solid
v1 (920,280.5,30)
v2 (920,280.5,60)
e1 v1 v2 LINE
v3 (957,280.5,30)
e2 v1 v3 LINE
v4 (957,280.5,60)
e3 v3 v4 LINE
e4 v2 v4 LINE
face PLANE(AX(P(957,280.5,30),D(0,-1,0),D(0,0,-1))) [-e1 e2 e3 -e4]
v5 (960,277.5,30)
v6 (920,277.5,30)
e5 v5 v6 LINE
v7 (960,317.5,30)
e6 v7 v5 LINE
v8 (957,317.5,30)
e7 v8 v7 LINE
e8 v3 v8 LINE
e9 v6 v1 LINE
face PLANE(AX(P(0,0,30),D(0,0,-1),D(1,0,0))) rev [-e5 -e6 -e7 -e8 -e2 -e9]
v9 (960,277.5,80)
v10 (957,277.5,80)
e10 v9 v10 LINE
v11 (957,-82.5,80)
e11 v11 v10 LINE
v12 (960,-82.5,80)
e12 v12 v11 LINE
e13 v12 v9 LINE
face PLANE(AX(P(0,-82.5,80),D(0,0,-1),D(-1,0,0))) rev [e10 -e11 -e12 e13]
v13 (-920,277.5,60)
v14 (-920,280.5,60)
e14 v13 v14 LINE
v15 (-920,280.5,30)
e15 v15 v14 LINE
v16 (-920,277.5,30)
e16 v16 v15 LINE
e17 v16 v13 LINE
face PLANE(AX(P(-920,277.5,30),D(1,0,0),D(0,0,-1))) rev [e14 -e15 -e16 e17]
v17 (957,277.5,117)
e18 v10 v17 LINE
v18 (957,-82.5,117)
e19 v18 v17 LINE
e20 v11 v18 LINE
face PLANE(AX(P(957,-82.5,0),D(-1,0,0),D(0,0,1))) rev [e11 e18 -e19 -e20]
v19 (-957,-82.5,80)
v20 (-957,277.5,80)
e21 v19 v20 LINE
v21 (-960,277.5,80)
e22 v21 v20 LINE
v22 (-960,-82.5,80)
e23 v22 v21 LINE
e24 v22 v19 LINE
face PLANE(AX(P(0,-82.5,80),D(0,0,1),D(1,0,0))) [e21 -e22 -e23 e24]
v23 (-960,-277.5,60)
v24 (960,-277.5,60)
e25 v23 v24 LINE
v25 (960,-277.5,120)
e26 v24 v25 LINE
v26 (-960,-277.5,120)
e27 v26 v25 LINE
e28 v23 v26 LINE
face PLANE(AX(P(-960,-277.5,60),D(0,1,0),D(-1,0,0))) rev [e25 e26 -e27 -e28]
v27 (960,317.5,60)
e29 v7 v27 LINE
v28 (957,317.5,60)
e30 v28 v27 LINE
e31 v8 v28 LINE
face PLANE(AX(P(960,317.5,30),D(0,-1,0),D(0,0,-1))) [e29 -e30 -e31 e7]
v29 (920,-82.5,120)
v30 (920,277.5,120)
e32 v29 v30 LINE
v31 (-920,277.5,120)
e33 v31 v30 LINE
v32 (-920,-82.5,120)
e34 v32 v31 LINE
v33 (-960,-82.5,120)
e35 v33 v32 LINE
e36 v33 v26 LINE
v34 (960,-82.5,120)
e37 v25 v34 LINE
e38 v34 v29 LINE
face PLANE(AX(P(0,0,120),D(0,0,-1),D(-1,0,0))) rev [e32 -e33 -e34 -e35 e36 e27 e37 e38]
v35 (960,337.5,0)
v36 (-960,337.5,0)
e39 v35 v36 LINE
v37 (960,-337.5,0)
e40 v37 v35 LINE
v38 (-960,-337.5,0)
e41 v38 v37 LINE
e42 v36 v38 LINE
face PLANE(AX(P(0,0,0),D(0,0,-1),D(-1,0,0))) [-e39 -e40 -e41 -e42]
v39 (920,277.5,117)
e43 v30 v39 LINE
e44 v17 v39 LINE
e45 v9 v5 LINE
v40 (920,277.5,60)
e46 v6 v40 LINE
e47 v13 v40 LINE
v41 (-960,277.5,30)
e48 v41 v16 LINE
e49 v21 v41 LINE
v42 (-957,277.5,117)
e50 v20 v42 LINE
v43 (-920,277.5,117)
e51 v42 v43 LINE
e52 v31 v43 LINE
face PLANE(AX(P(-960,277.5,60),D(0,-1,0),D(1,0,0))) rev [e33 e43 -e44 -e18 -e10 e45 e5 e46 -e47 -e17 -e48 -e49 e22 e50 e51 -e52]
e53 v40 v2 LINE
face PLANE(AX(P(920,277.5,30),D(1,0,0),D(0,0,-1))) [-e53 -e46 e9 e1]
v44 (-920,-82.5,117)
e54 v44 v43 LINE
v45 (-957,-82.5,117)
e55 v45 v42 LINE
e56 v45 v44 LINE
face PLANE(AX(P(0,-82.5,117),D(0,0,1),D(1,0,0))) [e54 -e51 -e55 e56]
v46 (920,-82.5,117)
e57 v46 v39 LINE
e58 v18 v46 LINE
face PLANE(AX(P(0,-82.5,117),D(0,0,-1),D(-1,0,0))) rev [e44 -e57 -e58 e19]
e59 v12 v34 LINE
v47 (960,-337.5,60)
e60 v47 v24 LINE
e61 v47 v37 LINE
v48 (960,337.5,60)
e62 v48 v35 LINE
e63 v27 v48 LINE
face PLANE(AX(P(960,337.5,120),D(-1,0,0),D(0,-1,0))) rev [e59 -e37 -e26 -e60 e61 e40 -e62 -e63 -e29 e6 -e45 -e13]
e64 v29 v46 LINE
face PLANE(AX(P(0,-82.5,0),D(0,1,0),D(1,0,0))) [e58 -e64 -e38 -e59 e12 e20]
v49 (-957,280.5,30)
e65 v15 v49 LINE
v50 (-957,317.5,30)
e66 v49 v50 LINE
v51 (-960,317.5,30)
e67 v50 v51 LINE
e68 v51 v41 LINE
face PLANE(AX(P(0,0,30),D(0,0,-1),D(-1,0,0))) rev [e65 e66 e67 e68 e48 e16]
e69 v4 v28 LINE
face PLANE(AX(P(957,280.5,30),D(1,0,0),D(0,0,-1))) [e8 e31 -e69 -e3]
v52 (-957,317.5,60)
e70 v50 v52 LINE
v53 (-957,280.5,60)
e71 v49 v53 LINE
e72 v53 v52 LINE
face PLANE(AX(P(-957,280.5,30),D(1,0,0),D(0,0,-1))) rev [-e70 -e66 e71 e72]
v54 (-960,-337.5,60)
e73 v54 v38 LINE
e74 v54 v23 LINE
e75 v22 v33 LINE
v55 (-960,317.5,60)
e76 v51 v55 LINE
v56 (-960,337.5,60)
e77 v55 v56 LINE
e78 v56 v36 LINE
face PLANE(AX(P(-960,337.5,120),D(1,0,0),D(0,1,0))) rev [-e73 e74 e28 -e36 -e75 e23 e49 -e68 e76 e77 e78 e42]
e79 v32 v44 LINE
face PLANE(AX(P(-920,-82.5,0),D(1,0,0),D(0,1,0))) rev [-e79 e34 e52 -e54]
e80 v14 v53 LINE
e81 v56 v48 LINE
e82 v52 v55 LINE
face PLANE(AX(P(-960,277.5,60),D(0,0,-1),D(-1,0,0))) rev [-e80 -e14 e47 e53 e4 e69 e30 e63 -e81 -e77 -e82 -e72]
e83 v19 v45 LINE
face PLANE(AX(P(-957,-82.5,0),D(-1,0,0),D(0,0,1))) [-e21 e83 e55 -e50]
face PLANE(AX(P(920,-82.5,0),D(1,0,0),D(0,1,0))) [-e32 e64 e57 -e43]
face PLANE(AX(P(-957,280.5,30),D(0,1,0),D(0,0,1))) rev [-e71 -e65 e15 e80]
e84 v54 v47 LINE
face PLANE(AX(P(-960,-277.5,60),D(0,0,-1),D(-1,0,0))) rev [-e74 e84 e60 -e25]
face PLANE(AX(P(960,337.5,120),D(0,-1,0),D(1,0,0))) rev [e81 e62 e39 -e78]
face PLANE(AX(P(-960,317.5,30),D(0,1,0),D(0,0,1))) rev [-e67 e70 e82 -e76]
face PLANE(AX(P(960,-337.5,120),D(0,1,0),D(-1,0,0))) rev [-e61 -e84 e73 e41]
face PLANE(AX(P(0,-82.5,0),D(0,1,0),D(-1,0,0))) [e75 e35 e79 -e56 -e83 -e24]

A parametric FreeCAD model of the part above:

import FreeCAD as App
import Part
import Sketcher
Q = App.Units.Quantity

doc = App.newDocument("Part")
params = doc.addObject("Spreadsheet::Sheet", "Params")
for row, (alias, value) in enumerate([
    ("sketch1_width", "1920 mm"),
    ("sketch1_height", "675 mm"),
    ("pad1_length", "120 mm"),
    ("sketch2_width", "60 mm"),
    ("sketch3_width", "40 mm"),
    ("sketch3_width2", "37 mm"),
    ("pocket2_length", "360 mm"),
    ("sketch4_width", "37 mm"),
    ("sketch4_width2", "3 mm"),
    ("pocket3_length", "30 mm"),
], start=1):
    params.set(f"A{row}", alias)
    params.set(f"B{row}", "=" + value)
    params.setAlias(f"B{row}", alias)

body = doc.addObject("PartDesign::Body", "Body")

sketch1 = body.newObject("Sketcher::SketchObject", "Sketch")
sketch1.AttachmentSupport = (doc.getObject("XY_Plane"), [""])
sketch1.MapMode = "FlatFace"
sketch1.addGeometry(Part.LineSegment(App.Vector(-960, 338, 0), App.Vector(-960, -338, 0)), False)
sketch1.addGeometry(Part.LineSegment(App.Vector(-960, -338, 0), App.Vector(960, -338, 0)), False)
sketch1.addGeometry(Part.LineSegment(App.Vector(960, -338, 0), App.Vector(960, 338, 0)), False)
sketch1.addGeometry(Part.LineSegment(App.Vector(960, 338, 0), App.Vector(-960, 338, 0)), False)
sketch1.addConstraint(Sketcher.Constraint("Coincident", 0, 2, 1, 1))
sketch1.addConstraint(Sketcher.Constraint("Coincident", 1, 2, 2, 1))
sketch1.addConstraint(Sketcher.Constraint("Coincident", 2, 2, 3, 1))
sketch1.addConstraint(Sketcher.Constraint("Coincident", 3, 2, 0, 1))
sketch1.addConstraint(Sketcher.Constraint("Vertical", 0))
sketch1.addConstraint(Sketcher.Constraint("Horizontal", 1))
sketch1.addConstraint(Sketcher.Constraint("Vertical", 2))
sketch1.addConstraint(Sketcher.Constraint("Horizontal", 3))
sketch1.addConstraint(Sketcher.Constraint("Symmetric", 0, 2, 2, 2, -1, 1))
sketch1.addConstraint(Sketcher.Constraint("DistanceX", 1, 1, 1, 2, Q("1920 mm")))
sketch1.addConstraint(Sketcher.Constraint("DistanceY", 0, 2, 0, 1, Q("675 mm")))
sketch1.setExpression("Constraints[9]", "Params.sketch1_width")
sketch1.setExpression("Constraints[10]", "Params.sketch1_height")
pad1 = body.newObject("PartDesign::Pad", "Pad")
pad1.Profile = sketch1
pad1.setExpression("Length", "Params.pad1_length")

sketch2 = body.newObject("Sketcher::SketchObject", "Sketch001")
sketch2.AttachmentSupport = (doc.getObject("YZ_Plane"), [""])
sketch2.MapMode = "FlatFace"
sketch2.AttachmentOffset = App.Placement(App.Vector(0, 0, 960), App.Rotation())
sketch2.addGeometry(Part.LineSegment(App.Vector(338, 120, 0), App.Vector(278, 120, 0)), False)
sketch2.addGeometry(Part.LineSegment(App.Vector(278, 120, 0), App.Vector(278, 60, 0)), False)
sketch2.addGeometry(Part.LineSegment(App.Vector(278, 60, 0), App.Vector(338, 60, 0)), False)
sketch2.addGeometry(Part.LineSegment(App.Vector(338, 60, 0), App.Vector(338, 120, 0)), False)
sketch2.addGeometry(Part.LineSegment(App.Vector(-278, 120, 0), App.Vector(-338, 120, 0)), False)
sketch2.addGeometry(Part.LineSegment(App.Vector(-338, 120, 0), App.Vector(-338, 60, 0)), False)
sketch2.addGeometry(Part.LineSegment(App.Vector(-338, 60, 0), App.Vector(-278, 60, 0)), False)
sketch2.addGeometry(Part.LineSegment(App.Vector(-278, 60, 0), App.Vector(-278, 120, 0)), False)
sketch2.addConstraint(Sketcher.Constraint("Coincident", 0, 2, 1, 1))
sketch2.addConstraint(Sketcher.Constraint("Coincident", 1, 2, 2, 1))
sketch2.addConstraint(Sketcher.Constraint("Coincident", 2, 2, 3, 1))
sketch2.addConstraint(Sketcher.Constraint("Coincident", 3, 2, 0, 1))
sketch2.addConstraint(Sketcher.Constraint("Coincident", 4, 2, 5, 1))
sketch2.addConstraint(Sketcher.Constraint("Coincident", 5, 2, 6, 1))
sketch2.addConstraint(Sketcher.Constraint("Coincident", 6, 2, 7, 1))
sketch2.addConstraint(Sketcher.Constraint("Coincident", 7, 2, 4, 1))
sketch2.addConstraint(Sketcher.Constraint("Horizontal", 0))
sketch2.addConstraint(Sketcher.Constraint("Vertical", 1))
sketch2.addConstraint(Sketcher.Constraint("Horizontal", 2))
sketch2.addConstraint(Sketcher.Constraint("Vertical", 3))
sketch2.addConstraint(Sketcher.Constraint("Horizontal", 4))
sketch2.addConstraint(Sketcher.Constraint("Vertical", 5))
sketch2.addConstraint(Sketcher.Constraint("Horizontal", 6))
sketch2.addConstraint(Sketcher.Constraint("Vertical", 7))
sketch2.addConstraint(Sketcher.Constraint("Symmetric", 3, 2, 4, 2, -2))
sketch2.addConstraint(Sketcher.Constraint("Symmetric", 1, 2, 6, 2, -2))
sketch2.addConstraint(Sketcher.Constraint("Equal", 6, 1))
sketch2.addConstraint(Sketcher.Constraint("DistanceX", 0, 2, 0, 1, Q("60 mm")))
sketch2.addConstraint(Sketcher.Constraint("DistanceY", -1, 1, 0, 2, Q("120 mm")))
sketch2.addConstraint(Sketcher.Constraint("DistanceX", 4, 2, 0, 2, Q("615 mm")))
sketch2.setExpression("Constraints[19]", "Params.sketch2_width")
pocket1 = body.newObject("PartDesign::Pocket", "Pocket")
pocket1.Profile = sketch2
pocket1.Type = "ThroughAll"

sketch3 = body.newObject("Sketcher::SketchObject", "Sketch002")
sketch3.AttachmentSupport = (doc.getObject("XZ_Plane"), [""])
sketch3.MapMode = "FlatFace"
sketch3.AttachmentOffset = App.Placement(App.Vector(0, 0, -277.5), App.Rotation())
sketch3.addGeometry(Part.LineSegment(App.Vector(-960, 120, 0), App.Vector(-920, 120, 0)), False)
sketch3.addGeometry(Part.LineSegment(App.Vector(-920, 120, 0), App.Vector(-920, 117, 0)), False)
sketch3.addGeometry(Part.LineSegment(App.Vector(-920, 117, 0), App.Vector(-957, 117, 0)), False)
sketch3.addGeometry(Part.LineSegment(App.Vector(-957, 117, 0), App.Vector(-957, 80, 0)), False)
sketch3.addGeometry(Part.LineSegment(App.Vector(-957, 80, 0), App.Vector(-960, 80, 0)), False)
sketch3.addGeometry(Part.LineSegment(App.Vector(-960, 80, 0), App.Vector(-960, 120, 0)), False)
sketch3.addConstraint(Sketcher.Constraint("Coincident", 0, 2, 1, 1))
sketch3.addConstraint(Sketcher.Constraint("Coincident", 1, 2, 2, 1))
sketch3.addConstraint(Sketcher.Constraint("Coincident", 2, 2, 3, 1))
sketch3.addConstraint(Sketcher.Constraint("Coincident", 3, 2, 4, 1))
sketch3.addConstraint(Sketcher.Constraint("Coincident", 4, 2, 5, 1))
sketch3.addConstraint(Sketcher.Constraint("Coincident", 5, 2, 0, 1))
sketch3.addConstraint(Sketcher.Constraint("Horizontal", 0))
sketch3.addConstraint(Sketcher.Constraint("Vertical", 1))
sketch3.addConstraint(Sketcher.Constraint("Horizontal", 2))
sketch3.addConstraint(Sketcher.Constraint("Vertical", 3))
sketch3.addConstraint(Sketcher.Constraint("Horizontal", 4))
sketch3.addConstraint(Sketcher.Constraint("Vertical", 5))
sketch3.addConstraint(Sketcher.Constraint("Equal", 4, 1))
sketch3.addConstraint(Sketcher.Constraint("Equal", 2, 3))
sketch3.addConstraint(Sketcher.Constraint("DistanceX", 0, 1, 0, 2, Q("40 mm")))
sketch3.addConstraint(Sketcher.Constraint("DistanceX", 2, 2, 2, 1, Q("37 mm")))
sketch3.addConstraint(Sketcher.Constraint("DistanceX", 0, 2, -1, 1, Q("920 mm")))
sketch3.addConstraint(Sketcher.Constraint("DistanceY", -1, 1, 0, 2, Q("120 mm")))
sketch3.setExpression("Constraints[14]", "Params.sketch3_width")
sketch3.setExpression("Constraints[15]", "Params.sketch3_width2")
pocket2 = body.newObject("PartDesign::Pocket", "Pocket001")
pocket2.Profile = sketch3
pocket2.setExpression("Length", "Params.pocket2_length")
pocket2.Reversed = True

sketch4 = body.newObject("Sketcher::SketchObject", "Sketch003")
sketch4.AttachmentSupport = (doc.getObject("XY_Plane"), [""])
sketch4.MapMode = "FlatFace"
sketch4.AttachmentOffset = App.Placement(App.Vector(0, 0, 60), App.Rotation())
sketch4.addGeometry(Part.LineSegment(App.Vector(-920, 280.5, 0), App.Vector(-957, 280.5, 0)), False)
sketch4.addGeometry(Part.LineSegment(App.Vector(-957, 280.5, 0), App.Vector(-957, 317.5, 0)), False)
sketch4.addGeometry(Part.LineSegment(App.Vector(-957, 317.5, 0), App.Vector(-960, 317.5, 0)), False)
sketch4.addGeometry(Part.LineSegment(App.Vector(-960, 317.5, 0), App.Vector(-960, 277.5, 0)), False)
sketch4.addGeometry(Part.LineSegment(App.Vector(-960, 277.5, 0), App.Vector(-920, 277.5, 0)), False)
sketch4.addGeometry(Part.LineSegment(App.Vector(-920, 277.5, 0), App.Vector(-920, 280.5, 0)), False)
sketch4.addConstraint(Sketcher.Constraint("Coincident", 0, 2, 1, 1))
sketch4.addConstraint(Sketcher.Constraint("Coincident", 1, 2, 2, 1))
sketch4.addConstraint(Sketcher.Constraint("Coincident", 2, 2, 3, 1))
sketch4.addConstraint(Sketcher.Constraint("Coincident", 3, 2, 4, 1))
sketch4.addConstraint(Sketcher.Constraint("Coincident", 4, 2, 5, 1))
sketch4.addConstraint(Sketcher.Constraint("Coincident", 5, 2, 0, 1))
sketch4.addConstraint(Sketcher.Constraint("Horizontal", 0))
sketch4.addConstraint(Sketcher.Constraint("Vertical", 1))
sketch4.addConstraint(Sketcher.Constraint("Horizontal", 2))
sketch4.addConstraint(Sketcher.Constraint("Vertical", 3))
sketch4.addConstraint(Sketcher.Constraint("Horizontal", 4))
sketch4.addConstraint(Sketcher.Constraint("Vertical", 5))
sketch4.addConstraint(Sketcher.Constraint("Equal", 0, 1))
sketch4.addConstraint(Sketcher.Constraint("Equal", 4, 3))
sketch4.addConstraint(Sketcher.Constraint("DistanceX", 0, 2, 0, 1, Q("37 mm")))
sketch4.addConstraint(Sketcher.Constraint("DistanceX", 2, 2, 2, 1, Q("3 mm")))
sketch4.addConstraint(Sketcher.Constraint("DistanceX", 0, 2, -1, 1, Q("957 mm")))
sketch4.addConstraint(Sketcher.Constraint("DistanceY", -1, 1, 0, 2, Q("280.5 mm")))
sketch4.setExpression("Constraints[14]", "Params.sketch4_width")
sketch4.setExpression("Constraints[15]", "Params.sketch4_width2")
pocket3 = body.newObject("PartDesign::Pocket", "Pocket002")
pocket3.Profile = sketch4
pocket3.setExpression("Length", "Params.pocket3_length")
doc.recompute()

mirrored = body.newObject("PartDesign::Mirrored", "Mirrored")
mirrored.Originals = [pocket2, pocket3]
mirrored.MirrorPlane = (doc.getObject("YZ_Plane"), [""])
body.Tip = mirrored

doc.recompute()
